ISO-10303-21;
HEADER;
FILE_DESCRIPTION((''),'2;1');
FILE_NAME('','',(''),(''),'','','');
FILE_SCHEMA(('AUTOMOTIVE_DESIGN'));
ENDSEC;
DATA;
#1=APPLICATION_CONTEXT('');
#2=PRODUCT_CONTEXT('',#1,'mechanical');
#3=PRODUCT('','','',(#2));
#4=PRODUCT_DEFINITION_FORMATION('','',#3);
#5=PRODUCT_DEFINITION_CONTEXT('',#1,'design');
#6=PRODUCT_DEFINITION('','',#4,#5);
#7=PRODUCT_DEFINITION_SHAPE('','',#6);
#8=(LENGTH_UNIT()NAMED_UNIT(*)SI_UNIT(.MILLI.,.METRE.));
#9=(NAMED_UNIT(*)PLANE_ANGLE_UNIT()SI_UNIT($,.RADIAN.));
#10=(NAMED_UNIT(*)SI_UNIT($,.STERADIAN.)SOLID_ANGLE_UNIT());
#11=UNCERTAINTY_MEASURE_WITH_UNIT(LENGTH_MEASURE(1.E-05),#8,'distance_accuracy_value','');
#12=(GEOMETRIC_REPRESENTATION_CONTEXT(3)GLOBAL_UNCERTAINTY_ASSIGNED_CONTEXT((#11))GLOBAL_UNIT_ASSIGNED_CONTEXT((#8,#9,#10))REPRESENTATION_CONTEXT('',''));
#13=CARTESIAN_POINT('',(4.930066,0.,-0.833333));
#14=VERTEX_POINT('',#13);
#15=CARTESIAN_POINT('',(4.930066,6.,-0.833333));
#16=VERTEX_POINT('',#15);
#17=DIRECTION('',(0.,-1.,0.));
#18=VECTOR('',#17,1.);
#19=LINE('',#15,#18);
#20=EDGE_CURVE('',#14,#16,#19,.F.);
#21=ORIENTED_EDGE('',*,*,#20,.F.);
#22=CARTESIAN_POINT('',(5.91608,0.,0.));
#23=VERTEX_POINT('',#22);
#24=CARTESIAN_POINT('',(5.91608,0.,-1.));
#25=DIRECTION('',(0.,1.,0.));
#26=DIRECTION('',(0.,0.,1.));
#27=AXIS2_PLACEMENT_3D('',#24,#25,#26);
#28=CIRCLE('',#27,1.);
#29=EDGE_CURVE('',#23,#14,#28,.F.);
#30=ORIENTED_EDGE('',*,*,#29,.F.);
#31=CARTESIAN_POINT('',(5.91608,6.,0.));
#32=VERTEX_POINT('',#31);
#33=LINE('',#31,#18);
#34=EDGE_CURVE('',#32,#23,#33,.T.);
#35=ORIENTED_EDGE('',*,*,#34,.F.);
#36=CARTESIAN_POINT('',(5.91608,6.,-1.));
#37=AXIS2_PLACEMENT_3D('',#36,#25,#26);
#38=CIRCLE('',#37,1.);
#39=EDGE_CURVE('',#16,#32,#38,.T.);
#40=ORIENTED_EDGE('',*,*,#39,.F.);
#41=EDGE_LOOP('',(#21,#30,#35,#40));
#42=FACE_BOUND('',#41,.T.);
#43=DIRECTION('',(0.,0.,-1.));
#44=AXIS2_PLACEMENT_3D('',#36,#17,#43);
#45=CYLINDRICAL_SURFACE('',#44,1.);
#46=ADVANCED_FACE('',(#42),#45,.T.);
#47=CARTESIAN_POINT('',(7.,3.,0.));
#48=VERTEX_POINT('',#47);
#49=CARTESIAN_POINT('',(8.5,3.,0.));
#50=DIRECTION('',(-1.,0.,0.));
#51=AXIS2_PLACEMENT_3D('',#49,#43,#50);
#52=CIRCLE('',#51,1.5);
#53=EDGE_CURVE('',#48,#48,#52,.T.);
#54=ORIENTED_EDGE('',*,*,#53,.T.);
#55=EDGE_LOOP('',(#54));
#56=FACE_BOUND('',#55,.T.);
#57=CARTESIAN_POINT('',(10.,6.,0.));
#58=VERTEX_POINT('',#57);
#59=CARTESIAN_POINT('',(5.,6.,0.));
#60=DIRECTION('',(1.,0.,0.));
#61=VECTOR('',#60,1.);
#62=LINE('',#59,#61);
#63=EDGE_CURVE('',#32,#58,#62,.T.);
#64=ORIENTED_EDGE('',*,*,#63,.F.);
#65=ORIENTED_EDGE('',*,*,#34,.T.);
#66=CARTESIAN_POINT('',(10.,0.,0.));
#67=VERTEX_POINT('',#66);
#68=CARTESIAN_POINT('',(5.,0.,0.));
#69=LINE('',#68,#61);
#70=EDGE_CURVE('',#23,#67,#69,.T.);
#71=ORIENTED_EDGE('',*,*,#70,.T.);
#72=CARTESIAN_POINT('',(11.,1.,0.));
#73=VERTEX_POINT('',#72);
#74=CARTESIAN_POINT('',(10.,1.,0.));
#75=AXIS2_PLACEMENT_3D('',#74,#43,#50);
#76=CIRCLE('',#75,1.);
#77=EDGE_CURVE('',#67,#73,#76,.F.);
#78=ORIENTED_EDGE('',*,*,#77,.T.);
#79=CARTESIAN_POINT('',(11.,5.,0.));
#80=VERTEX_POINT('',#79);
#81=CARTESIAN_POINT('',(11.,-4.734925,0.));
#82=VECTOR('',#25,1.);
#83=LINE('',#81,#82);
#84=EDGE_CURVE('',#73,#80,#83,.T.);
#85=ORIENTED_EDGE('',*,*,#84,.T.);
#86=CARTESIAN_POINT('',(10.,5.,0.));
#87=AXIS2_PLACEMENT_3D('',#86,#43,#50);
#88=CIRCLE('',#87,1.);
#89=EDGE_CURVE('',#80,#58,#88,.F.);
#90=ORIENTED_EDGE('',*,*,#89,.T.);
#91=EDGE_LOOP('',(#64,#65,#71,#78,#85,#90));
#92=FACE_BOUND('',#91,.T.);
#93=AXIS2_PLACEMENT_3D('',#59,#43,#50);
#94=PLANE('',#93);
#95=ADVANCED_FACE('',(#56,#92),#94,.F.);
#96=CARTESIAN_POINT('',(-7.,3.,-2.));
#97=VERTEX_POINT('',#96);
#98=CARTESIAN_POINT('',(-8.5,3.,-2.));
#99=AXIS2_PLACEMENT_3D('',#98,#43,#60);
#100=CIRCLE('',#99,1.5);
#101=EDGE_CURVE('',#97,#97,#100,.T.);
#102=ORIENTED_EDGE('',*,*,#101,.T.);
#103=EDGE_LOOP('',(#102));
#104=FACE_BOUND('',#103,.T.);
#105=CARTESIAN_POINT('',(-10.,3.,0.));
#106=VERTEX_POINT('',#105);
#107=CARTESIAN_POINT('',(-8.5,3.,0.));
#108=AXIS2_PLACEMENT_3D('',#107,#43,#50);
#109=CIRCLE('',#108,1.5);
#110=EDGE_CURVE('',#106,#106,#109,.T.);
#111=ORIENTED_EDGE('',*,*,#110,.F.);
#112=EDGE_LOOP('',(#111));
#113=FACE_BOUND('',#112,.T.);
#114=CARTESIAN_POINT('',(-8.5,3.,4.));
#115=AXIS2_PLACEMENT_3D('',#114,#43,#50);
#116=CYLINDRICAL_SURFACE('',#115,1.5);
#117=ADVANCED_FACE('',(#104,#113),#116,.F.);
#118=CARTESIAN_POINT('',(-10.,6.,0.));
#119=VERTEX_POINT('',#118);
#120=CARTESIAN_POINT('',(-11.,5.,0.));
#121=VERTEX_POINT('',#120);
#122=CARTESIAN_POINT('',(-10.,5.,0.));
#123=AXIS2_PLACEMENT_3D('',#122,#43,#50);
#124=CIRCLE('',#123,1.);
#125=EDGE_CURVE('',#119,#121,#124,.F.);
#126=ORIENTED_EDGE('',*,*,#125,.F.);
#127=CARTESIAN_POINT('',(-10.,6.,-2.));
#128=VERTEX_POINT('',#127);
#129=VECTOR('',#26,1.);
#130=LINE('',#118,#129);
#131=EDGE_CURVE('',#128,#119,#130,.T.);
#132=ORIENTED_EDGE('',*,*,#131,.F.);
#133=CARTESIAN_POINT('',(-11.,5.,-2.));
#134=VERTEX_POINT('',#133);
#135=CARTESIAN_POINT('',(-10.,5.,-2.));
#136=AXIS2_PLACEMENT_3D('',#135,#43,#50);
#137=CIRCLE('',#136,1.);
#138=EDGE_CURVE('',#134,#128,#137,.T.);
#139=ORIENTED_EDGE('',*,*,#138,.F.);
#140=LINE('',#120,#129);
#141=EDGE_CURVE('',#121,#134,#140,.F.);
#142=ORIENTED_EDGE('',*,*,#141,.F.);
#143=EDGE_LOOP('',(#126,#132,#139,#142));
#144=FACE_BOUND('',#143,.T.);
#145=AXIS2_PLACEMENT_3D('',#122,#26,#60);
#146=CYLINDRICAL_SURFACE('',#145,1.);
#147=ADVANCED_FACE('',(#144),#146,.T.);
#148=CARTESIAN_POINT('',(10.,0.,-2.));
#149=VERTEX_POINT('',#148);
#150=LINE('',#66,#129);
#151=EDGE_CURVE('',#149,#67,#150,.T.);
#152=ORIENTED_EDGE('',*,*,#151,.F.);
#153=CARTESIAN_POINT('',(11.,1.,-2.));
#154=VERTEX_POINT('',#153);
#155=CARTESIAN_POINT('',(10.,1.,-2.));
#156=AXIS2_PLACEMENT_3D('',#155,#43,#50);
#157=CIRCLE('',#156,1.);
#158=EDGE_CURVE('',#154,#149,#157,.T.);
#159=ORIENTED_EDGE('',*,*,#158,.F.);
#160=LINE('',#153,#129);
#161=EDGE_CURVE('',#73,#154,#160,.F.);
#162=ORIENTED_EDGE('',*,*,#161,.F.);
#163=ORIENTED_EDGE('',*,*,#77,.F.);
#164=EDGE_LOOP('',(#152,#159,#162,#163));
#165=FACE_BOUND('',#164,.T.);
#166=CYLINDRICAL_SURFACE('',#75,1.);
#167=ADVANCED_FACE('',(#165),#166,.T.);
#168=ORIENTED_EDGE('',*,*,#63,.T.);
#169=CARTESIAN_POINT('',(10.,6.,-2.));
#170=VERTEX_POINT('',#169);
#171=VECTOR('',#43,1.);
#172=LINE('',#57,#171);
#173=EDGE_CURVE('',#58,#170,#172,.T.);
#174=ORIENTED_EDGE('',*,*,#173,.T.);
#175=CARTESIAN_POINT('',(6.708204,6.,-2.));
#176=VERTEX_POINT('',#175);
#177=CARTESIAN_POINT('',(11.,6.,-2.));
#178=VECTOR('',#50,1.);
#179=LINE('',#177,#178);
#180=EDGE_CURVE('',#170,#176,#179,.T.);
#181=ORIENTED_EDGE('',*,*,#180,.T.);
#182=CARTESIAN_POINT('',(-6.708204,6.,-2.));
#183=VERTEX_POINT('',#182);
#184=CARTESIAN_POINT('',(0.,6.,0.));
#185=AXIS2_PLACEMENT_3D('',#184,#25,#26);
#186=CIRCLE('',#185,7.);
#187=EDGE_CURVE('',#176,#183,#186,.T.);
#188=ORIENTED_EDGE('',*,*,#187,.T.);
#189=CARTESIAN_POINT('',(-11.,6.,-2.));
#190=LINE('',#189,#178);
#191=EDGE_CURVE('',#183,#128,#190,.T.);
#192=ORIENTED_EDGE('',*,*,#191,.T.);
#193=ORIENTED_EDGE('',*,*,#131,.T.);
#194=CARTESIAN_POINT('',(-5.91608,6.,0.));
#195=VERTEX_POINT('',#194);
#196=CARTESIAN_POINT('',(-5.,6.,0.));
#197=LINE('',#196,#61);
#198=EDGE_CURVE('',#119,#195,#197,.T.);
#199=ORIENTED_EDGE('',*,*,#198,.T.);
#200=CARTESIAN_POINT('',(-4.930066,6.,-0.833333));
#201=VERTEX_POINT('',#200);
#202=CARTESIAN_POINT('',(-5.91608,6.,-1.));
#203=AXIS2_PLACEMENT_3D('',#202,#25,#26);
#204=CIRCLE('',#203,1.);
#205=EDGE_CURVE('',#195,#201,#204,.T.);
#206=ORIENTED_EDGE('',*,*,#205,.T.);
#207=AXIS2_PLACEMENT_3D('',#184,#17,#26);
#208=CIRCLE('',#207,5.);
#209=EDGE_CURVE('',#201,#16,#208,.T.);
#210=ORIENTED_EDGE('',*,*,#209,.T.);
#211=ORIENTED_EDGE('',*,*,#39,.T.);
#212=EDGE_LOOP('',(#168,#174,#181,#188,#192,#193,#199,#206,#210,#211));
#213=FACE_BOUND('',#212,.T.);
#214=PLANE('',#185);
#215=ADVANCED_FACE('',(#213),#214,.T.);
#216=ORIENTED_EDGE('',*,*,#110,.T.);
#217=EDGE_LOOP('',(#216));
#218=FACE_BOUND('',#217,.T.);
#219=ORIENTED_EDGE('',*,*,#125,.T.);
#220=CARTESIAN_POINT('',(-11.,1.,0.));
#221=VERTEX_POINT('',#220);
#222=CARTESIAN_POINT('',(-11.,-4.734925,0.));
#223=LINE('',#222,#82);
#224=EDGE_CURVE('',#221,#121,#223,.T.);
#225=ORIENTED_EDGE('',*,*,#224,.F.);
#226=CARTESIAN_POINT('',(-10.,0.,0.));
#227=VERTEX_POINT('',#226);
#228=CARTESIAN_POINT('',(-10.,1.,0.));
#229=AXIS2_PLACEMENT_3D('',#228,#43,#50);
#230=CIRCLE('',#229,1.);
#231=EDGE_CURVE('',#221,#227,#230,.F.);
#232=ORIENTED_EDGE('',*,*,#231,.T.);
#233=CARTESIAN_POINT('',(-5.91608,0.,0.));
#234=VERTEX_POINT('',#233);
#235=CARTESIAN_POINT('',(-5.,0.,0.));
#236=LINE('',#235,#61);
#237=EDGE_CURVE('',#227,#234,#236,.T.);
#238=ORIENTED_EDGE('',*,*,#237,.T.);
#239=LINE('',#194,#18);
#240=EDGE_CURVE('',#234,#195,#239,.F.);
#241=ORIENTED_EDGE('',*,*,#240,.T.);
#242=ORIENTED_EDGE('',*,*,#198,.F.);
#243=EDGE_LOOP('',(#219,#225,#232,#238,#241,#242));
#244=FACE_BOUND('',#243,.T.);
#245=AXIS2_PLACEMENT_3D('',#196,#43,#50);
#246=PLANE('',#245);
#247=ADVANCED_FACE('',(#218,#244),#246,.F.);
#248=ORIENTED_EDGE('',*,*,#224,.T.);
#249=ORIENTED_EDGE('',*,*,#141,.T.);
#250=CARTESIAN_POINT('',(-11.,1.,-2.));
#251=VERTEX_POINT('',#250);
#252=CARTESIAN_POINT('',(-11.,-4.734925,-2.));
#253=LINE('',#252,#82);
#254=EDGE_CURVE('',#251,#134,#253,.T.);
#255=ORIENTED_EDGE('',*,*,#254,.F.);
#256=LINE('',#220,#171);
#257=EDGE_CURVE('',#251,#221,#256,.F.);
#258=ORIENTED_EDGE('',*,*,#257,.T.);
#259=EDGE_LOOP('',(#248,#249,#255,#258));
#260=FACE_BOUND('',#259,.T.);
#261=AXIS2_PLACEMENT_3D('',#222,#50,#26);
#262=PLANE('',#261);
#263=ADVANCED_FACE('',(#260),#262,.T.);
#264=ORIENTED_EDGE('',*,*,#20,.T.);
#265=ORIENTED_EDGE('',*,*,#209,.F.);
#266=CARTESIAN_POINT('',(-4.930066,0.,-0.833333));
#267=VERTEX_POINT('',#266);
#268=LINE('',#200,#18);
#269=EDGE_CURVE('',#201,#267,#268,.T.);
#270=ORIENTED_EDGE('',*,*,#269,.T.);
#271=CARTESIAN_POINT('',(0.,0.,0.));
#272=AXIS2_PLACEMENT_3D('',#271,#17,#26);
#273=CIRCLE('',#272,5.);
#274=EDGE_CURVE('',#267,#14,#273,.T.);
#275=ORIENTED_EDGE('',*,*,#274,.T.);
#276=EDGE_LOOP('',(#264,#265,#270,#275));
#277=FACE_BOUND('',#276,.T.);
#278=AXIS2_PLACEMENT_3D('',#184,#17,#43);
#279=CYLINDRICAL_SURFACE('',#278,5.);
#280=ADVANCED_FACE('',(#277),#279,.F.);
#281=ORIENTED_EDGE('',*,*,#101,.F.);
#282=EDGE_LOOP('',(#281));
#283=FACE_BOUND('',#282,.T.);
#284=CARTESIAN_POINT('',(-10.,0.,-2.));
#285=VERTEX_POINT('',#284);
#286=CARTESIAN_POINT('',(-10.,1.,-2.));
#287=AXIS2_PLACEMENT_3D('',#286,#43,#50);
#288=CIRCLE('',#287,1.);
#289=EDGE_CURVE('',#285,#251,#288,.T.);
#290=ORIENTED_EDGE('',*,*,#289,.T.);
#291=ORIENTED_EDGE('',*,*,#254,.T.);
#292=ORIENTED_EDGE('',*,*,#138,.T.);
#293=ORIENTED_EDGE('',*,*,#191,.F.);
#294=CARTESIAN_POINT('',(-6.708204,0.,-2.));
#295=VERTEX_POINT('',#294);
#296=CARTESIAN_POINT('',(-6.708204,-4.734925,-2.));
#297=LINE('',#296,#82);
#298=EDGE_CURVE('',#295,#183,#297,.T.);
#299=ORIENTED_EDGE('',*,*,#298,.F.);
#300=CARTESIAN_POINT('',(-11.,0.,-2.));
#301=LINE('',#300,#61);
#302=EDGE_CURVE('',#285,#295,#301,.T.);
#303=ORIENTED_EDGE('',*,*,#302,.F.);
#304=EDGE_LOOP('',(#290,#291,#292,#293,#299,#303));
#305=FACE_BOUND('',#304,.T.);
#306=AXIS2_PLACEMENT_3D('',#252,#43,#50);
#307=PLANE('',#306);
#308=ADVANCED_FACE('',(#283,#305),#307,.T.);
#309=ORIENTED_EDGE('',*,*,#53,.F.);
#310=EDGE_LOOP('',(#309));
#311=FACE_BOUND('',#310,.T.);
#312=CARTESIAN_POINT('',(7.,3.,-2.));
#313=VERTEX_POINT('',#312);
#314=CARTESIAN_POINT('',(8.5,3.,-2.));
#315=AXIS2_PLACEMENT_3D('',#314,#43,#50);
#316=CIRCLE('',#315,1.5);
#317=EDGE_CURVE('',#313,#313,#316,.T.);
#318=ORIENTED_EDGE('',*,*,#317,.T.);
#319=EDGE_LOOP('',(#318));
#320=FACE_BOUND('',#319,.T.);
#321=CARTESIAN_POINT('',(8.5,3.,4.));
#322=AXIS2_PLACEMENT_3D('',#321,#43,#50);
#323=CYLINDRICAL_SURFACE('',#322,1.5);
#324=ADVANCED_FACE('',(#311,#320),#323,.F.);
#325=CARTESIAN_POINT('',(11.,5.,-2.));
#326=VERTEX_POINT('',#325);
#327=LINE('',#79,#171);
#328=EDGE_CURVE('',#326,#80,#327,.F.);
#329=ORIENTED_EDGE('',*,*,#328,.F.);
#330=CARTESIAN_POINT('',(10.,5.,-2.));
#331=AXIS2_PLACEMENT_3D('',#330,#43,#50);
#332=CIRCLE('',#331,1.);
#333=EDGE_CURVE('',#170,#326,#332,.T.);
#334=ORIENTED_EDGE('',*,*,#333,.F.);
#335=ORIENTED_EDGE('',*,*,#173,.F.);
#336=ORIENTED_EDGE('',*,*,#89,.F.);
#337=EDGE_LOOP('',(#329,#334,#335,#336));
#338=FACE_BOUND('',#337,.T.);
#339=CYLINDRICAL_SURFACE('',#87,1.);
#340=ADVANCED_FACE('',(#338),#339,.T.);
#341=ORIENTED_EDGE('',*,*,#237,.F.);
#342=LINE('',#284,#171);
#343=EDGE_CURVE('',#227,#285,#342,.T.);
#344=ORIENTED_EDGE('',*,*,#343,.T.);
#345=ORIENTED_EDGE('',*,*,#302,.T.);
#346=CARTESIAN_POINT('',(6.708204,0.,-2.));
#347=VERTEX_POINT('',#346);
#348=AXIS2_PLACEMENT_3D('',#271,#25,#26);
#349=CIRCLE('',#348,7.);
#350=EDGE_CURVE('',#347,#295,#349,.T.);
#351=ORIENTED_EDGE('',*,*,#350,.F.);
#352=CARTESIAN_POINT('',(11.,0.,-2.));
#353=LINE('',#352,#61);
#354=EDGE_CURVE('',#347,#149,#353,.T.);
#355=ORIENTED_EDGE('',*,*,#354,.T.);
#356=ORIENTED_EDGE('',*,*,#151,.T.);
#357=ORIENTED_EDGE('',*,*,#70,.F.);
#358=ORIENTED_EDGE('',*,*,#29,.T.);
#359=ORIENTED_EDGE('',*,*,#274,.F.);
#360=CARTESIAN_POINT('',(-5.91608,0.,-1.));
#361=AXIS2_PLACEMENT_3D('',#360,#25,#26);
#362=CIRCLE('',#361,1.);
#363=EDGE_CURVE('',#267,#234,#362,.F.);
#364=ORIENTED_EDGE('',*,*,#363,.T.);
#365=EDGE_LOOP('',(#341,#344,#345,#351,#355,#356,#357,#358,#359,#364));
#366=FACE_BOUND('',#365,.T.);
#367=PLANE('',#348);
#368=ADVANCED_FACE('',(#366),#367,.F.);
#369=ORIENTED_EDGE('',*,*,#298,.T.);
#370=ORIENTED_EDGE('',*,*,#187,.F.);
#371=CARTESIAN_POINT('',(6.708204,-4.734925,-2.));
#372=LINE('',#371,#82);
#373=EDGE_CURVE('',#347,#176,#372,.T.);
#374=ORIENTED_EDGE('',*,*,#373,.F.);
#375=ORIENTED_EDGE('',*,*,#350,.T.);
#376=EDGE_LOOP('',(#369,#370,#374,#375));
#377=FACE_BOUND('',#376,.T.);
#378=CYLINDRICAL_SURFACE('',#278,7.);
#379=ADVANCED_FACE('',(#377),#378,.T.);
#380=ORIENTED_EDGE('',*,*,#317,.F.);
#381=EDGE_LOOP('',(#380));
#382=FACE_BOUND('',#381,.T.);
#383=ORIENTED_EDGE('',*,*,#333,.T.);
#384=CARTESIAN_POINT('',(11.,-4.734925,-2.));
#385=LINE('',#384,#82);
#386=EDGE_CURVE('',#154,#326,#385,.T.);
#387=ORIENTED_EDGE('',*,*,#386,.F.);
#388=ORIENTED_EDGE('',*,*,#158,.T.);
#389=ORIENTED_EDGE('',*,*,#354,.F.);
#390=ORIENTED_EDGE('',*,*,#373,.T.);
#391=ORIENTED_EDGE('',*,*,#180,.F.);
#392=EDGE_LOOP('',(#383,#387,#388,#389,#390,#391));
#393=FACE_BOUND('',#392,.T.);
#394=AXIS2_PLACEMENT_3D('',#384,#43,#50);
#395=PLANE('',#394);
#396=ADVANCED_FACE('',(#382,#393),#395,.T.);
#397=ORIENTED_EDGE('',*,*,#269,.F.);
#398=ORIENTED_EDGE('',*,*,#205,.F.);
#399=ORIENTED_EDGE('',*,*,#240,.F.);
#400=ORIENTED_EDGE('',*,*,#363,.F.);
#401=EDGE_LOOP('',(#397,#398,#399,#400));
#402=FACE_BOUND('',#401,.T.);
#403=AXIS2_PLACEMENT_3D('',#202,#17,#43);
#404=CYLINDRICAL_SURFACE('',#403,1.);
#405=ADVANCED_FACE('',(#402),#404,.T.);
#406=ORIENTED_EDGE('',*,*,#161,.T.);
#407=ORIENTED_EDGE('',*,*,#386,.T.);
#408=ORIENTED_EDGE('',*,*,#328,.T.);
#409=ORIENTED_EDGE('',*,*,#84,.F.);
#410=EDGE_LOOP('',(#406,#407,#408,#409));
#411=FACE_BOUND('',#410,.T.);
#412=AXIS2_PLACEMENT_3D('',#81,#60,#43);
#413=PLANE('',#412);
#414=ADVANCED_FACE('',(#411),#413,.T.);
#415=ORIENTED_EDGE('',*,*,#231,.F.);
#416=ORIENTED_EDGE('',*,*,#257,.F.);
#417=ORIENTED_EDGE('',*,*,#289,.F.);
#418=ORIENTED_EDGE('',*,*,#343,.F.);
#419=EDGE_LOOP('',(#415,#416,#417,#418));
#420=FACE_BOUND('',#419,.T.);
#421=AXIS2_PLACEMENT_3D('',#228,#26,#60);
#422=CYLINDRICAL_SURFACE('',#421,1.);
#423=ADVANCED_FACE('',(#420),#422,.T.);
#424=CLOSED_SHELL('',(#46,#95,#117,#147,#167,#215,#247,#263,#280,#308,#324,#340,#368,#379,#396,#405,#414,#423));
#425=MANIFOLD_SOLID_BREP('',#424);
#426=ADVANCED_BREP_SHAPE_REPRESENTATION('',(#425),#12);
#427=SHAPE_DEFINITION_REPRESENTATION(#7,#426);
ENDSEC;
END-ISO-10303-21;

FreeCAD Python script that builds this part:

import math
import FreeCAD as App
import Part
import Sketcher


def edges_at(feature, points):
    """Names of the edges that pass closest to the given points."""
    edges = feature.Shape.Edges
    near = lambda p: min(range(len(edges)), key=lambda i: edges[i].distToShape(Part.Vertex(*p))[0])
    return sorted({f"Edge{near(p) + 1}" for p in points})

doc = App.newDocument("Part")
body = doc.addObject("PartDesign::Body", "Body")

# Sketch on XZ plane
sketch1 = body.newObject("Sketcher::SketchObject", "Sketch")
sketch1.AttachmentSupport = (doc.getObject("XZ_Plane"), [""])
sketch1.MapMode = "FlatFace"
sketch1.addGeometry(Part.LineSegment(App.Vector(5, 0, 0), App.Vector(7, 0, 0)), False)
sketch1.addGeometry(Part.ArcOfCircle(Part.Circle(App.Vector(0, 0, 0), App.Vector(0, 0, 1), 7), math.radians(180), math.radians(360)), False)
sketch1.addGeometry(Part.LineSegment(App.Vector(-7, 0, 0), App.Vector(-5, 0, 0)), False)
sketch1.addGeometry(Part.ArcOfCircle(Part.Circle(App.Vector(0, 0, 0), App.Vector(0, 0, 1), 5), math.radians(180), math.radians(360)), False)
sketch1.addConstraint(Sketcher.Constraint("Coincident", 0, 2, 1, 2))
sketch1.addConstraint(Sketcher.Constraint("Coincident", 1, 1, 2, 1))
sketch1.addConstraint(Sketcher.Constraint("Coincident", 2, 2, 3, 1))
sketch1.addConstraint(Sketcher.Constraint("Coincident", 3, 2, 0, 1))
sketch1.addConstraint(Sketcher.Constraint("Horizontal", 0))
sketch1.addConstraint(Sketcher.Constraint("Horizontal", 2))
sketch1.addConstraint(Sketcher.Constraint("Coincident", 1, 3, -1, 1))
sketch1.addConstraint(Sketcher.Constraint("Coincident", 3, 3, -1, 1))
sketch1.addConstraint(Sketcher.Constraint("PointOnObject", 0, 2, -1))
sketch1.addConstraint(Sketcher.Constraint("PointOnObject", 1, 1, -1))
sketch1.addConstraint(Sketcher.Constraint("Radius", 1, 7.0))
sketch1.addConstraint(Sketcher.Constraint("Radius", 3, 5.0))
pad1 = body.newObject("PartDesign::Pad", "Pad")
pad1.Profile = sketch1
pad1.Length = 6
pad1.Reversed = True

# Sketch on XZ plane
sketch2 = body.newObject("Sketcher::SketchObject", "Sketch001")
sketch2.AttachmentSupport = (doc.getObject("XZ_Plane"), [""])
sketch2.MapMode = "FlatFace"
sketch2.AttachmentOffset = App.Placement(App.Vector(0, 0, -6), App.Rotation())
sketch2.addGeometry(Part.LineSegment(App.Vector(7, 0, 0), App.Vector(11, 0, 0)), False)
sketch2.addGeometry(Part.LineSegment(App.Vector(11, 0, 0), App.Vector(11, -2, 0)), False)
sketch2.addGeometry(Part.LineSegment(App.Vector(11, -2, 0), App.Vector(6.7, -2, 0)), False)
sketch2.addGeometry(Part.LineSegment(App.Vector(6.7, -2, 0), App.Vector(7, 0, 0)), False)
sketch2.addGeometry(Part.LineSegment(App.Vector(-7, 0, 0), App.Vector(-6.7, -2, 0)), False)
sketch2.addGeometry(Part.LineSegment(App.Vector(-6.7, -2, 0), App.Vector(-11, -2, 0)), False)
sketch2.addGeometry(Part.LineSegment(App.Vector(-11, -2, 0), App.Vector(-11, 0, 0)), False)
sketch2.addGeometry(Part.LineSegment(App.Vector(-11, 0, 0), App.Vector(-7, 0, 0)), False)
sketch2.addConstraint(Sketcher.Constraint("Coincident", 0, 2, 1, 1))
sketch2.addConstraint(Sketcher.Constraint("Coincident", 1, 2, 2, 1))
sketch2.addConstraint(Sketcher.Constraint("Coincident", 2, 2, 3, 1))
sketch2.addConstraint(Sketcher.Constraint("Coincident", 3, 2, 0, 1))
sketch2.addConstraint(Sketcher.Constraint("Coincident", 4, 2, 5, 1))
sketch2.addConstraint(Sketcher.Constraint("Coincident", 5, 2, 6, 1))
sketch2.addConstraint(Sketcher.Constraint("Coincident", 6, 2, 7, 1))
sketch2.addConstraint(Sketcher.Constraint("Coincident", 7, 2, 4, 1))
sketch2.addConstraint(Sketcher.Constraint("Horizontal", 0))
sketch2.addConstraint(Sketcher.Constraint("Vertical", 1))
sketch2.addConstraint(Sketcher.Constraint("Horizontal", 2))
sketch2.addConstraint(Sketcher.Constraint("Horizontal", 5))
sketch2.addConstraint(Sketcher.Constraint("Vertical", 6))
sketch2.addConstraint(Sketcher.Constraint("Horizontal", 7))
sketch2.addConstraint(Sketcher.Constraint("Symmetric", 0, 2, 6, 2, -1, 1))
sketch2.addConstraint(Sketcher.Constraint("Symmetric", 2, 2, 4, 2, -2))
sketch2.addConstraint(Sketcher.Constraint("Symmetric", 3, 2, 7, 2, -2))
sketch2.addConstraint(Sketcher.Constraint("DistanceX", 0, 1, 0, 2, 4.0))
sketch2.addConstraint(Sketcher.Constraint("DistanceY", 1, 2, 1, 1, 2.0))
sketch2.addConstraint(Sketcher.Constraint("DistanceX", -1, 1, 0, 2, 11.0))
sketch2.addConstraint(Sketcher.Constraint("DistanceX", 2, 2, 2, 1, 4.291796))
pad2 = body.newObject("PartDesign::Pad", "Pad001")
pad2.Profile = sketch2
pad2.Length = 6

# Sketch on XY plane
sketch3 = body.newObject("Sketcher::SketchObject", "Sketch002")
sketch3.AttachmentSupport = (doc.getObject("XY_Plane"), [""])
sketch3.MapMode = "FlatFace"
sketch3.AttachmentOffset = App.Placement(App.Vector(0, 0, -2), App.Rotation())
sketch3.addGeometry(Part.Circle(App.Vector(8.5, 3, 0), App.Vector(0, 0, 1), 1.5), False)
sketch3.addGeometry(Part.Circle(App.Vector(-8.5, 3, 0), App.Vector(0, 0, 1), 1.5), False)
sketch3.addConstraint(Sketcher.Constraint("Equal", 0, 1))
sketch3.addConstraint(Sketcher.Constraint("Symmetric", 0, 3, 1, 3, -2))
sketch3.addConstraint(Sketcher.Constraint("Diameter", 0, 3.0))
sketch3.addConstraint(Sketcher.Constraint("DistanceY", -1, 1, 0, 3, 3.0))
sketch3.addConstraint(Sketcher.Constraint("DistanceX", 1, 3, 0, 3, 17.0))
pocket1 = body.newObject("PartDesign::Pocket", "Pocket")
pocket1.Profile = sketch3
pocket1.Length = 6
pocket1.Reversed = True
doc.recompute()

fillet = body.newObject("PartDesign::Fillet", "Fillet")
fillet.Base = (pocket1, edges_at(pocket1, [
    (11, 6, -1),
    (11, 0, -1),
    (-11, 6, -1),
    (-11, 0, -1),
    (-5, 3, 0),
    (5, 3, 0),
]))
fillet.Radius = 1

doc.recompute()
